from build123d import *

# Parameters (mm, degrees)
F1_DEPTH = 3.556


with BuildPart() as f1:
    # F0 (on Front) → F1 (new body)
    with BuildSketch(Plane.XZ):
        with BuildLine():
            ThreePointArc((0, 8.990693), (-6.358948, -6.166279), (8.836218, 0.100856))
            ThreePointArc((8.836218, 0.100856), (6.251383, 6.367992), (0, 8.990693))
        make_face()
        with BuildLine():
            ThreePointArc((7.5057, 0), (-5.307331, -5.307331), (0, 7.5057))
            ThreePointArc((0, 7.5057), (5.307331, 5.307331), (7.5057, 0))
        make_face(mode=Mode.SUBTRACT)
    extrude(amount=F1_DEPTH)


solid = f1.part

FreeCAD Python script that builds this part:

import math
import FreeCAD as App
import Part
import Sketcher

V = App.Vector
Q = App.Units.Quantity

doc = App.newDocument("Part")
params = doc.addObject("Spreadsheet::Sheet", "Params")
for row, (alias, value) in enumerate([
    ("sketch1_radius", "0.35 in"),
    ("pad1_length", "0.14 in"),
], start=1):
    params.set(f"A{row}", alias)
    params.set(f"B{row}", "=" + value)
    params.setAlias(f"B{row}", alias)

body = doc.addObject("PartDesign::Body", "Body")

# Sketch on XZ plane
sketch1 = body.newObject("Sketcher::SketchObject", "Sketch")
sketch1.AttachmentSupport = (doc.getObject("XZ_Plane"), [""])
sketch1.MapMode = "FlatFace"
sketch1.addGeometry([
    Part.ArcOfCircle(Part.Circle(V(-0.053782, 0.100856, 0), V(0, 0, 1), 8.89), math.radians(89.653375), math.radians(360.000001)),
    Part.ArcOfCircle(Part.Circle(V(-0.053782, 0.100856, 0), V(0, 0, 1), 8.89), math.radians(-0.000001), math.radians(89.653377)),
    Part.ArcOfCircle(Part.Circle(V(-0.000001, -0.000001, 0), V(0, 0, 1), 7.505701), math.radians(0.00001), math.radians(89.99999)),
    Part.ArcOfCircle(Part.Circle(V(0, 0, 0), V(0, 0, 1), 7.5057), math.radians(90.000002), math.radians(359.999998)),
], False)
sketch1.addConstraint([
    Sketcher.Constraint("Tangent", 0, 1, 1, 2),
    Sketcher.Constraint("Coincident", 1, 1, 0, 2),
    Sketcher.Constraint("Tangent", 2, 1, 3, 2),
    Sketcher.Constraint("Coincident", 3, 1, 2, 2),
    Sketcher.Constraint("Coincident", 2, 3, -1, 1),
    Sketcher.Constraint("PointOnObject", 0, 1, -2),
    Sketcher.Constraint("PointOnObject", 2, 1, -1),
    Sketcher.Constraint("PointOnObject", 3, 1, -2),
    Sketcher.Constraint("Horizontal", 0, 3, 1, 1),
    Sketcher.Constraint("Radius", 0, Q("0.35 in")),
    Sketcher.Constraint("Radius", 2, Q("0.2955 in")),
    Sketcher.Constraint("DistanceX", 0, 3, -1, 1, Q("0.053782 mm")),
    Sketcher.Constraint("DistanceY", -1, 1, 0, 3, Q("0.100856 mm")),
])
sketch1.setExpression("Constraints[9]", "Params.sketch1_radius")
pad1 = body.newObject("PartDesign::Pad", "Pad")
pad1.Profile = sketch1
pad1.setExpression("Length", "Params.pad1_length")

doc.recompute()
